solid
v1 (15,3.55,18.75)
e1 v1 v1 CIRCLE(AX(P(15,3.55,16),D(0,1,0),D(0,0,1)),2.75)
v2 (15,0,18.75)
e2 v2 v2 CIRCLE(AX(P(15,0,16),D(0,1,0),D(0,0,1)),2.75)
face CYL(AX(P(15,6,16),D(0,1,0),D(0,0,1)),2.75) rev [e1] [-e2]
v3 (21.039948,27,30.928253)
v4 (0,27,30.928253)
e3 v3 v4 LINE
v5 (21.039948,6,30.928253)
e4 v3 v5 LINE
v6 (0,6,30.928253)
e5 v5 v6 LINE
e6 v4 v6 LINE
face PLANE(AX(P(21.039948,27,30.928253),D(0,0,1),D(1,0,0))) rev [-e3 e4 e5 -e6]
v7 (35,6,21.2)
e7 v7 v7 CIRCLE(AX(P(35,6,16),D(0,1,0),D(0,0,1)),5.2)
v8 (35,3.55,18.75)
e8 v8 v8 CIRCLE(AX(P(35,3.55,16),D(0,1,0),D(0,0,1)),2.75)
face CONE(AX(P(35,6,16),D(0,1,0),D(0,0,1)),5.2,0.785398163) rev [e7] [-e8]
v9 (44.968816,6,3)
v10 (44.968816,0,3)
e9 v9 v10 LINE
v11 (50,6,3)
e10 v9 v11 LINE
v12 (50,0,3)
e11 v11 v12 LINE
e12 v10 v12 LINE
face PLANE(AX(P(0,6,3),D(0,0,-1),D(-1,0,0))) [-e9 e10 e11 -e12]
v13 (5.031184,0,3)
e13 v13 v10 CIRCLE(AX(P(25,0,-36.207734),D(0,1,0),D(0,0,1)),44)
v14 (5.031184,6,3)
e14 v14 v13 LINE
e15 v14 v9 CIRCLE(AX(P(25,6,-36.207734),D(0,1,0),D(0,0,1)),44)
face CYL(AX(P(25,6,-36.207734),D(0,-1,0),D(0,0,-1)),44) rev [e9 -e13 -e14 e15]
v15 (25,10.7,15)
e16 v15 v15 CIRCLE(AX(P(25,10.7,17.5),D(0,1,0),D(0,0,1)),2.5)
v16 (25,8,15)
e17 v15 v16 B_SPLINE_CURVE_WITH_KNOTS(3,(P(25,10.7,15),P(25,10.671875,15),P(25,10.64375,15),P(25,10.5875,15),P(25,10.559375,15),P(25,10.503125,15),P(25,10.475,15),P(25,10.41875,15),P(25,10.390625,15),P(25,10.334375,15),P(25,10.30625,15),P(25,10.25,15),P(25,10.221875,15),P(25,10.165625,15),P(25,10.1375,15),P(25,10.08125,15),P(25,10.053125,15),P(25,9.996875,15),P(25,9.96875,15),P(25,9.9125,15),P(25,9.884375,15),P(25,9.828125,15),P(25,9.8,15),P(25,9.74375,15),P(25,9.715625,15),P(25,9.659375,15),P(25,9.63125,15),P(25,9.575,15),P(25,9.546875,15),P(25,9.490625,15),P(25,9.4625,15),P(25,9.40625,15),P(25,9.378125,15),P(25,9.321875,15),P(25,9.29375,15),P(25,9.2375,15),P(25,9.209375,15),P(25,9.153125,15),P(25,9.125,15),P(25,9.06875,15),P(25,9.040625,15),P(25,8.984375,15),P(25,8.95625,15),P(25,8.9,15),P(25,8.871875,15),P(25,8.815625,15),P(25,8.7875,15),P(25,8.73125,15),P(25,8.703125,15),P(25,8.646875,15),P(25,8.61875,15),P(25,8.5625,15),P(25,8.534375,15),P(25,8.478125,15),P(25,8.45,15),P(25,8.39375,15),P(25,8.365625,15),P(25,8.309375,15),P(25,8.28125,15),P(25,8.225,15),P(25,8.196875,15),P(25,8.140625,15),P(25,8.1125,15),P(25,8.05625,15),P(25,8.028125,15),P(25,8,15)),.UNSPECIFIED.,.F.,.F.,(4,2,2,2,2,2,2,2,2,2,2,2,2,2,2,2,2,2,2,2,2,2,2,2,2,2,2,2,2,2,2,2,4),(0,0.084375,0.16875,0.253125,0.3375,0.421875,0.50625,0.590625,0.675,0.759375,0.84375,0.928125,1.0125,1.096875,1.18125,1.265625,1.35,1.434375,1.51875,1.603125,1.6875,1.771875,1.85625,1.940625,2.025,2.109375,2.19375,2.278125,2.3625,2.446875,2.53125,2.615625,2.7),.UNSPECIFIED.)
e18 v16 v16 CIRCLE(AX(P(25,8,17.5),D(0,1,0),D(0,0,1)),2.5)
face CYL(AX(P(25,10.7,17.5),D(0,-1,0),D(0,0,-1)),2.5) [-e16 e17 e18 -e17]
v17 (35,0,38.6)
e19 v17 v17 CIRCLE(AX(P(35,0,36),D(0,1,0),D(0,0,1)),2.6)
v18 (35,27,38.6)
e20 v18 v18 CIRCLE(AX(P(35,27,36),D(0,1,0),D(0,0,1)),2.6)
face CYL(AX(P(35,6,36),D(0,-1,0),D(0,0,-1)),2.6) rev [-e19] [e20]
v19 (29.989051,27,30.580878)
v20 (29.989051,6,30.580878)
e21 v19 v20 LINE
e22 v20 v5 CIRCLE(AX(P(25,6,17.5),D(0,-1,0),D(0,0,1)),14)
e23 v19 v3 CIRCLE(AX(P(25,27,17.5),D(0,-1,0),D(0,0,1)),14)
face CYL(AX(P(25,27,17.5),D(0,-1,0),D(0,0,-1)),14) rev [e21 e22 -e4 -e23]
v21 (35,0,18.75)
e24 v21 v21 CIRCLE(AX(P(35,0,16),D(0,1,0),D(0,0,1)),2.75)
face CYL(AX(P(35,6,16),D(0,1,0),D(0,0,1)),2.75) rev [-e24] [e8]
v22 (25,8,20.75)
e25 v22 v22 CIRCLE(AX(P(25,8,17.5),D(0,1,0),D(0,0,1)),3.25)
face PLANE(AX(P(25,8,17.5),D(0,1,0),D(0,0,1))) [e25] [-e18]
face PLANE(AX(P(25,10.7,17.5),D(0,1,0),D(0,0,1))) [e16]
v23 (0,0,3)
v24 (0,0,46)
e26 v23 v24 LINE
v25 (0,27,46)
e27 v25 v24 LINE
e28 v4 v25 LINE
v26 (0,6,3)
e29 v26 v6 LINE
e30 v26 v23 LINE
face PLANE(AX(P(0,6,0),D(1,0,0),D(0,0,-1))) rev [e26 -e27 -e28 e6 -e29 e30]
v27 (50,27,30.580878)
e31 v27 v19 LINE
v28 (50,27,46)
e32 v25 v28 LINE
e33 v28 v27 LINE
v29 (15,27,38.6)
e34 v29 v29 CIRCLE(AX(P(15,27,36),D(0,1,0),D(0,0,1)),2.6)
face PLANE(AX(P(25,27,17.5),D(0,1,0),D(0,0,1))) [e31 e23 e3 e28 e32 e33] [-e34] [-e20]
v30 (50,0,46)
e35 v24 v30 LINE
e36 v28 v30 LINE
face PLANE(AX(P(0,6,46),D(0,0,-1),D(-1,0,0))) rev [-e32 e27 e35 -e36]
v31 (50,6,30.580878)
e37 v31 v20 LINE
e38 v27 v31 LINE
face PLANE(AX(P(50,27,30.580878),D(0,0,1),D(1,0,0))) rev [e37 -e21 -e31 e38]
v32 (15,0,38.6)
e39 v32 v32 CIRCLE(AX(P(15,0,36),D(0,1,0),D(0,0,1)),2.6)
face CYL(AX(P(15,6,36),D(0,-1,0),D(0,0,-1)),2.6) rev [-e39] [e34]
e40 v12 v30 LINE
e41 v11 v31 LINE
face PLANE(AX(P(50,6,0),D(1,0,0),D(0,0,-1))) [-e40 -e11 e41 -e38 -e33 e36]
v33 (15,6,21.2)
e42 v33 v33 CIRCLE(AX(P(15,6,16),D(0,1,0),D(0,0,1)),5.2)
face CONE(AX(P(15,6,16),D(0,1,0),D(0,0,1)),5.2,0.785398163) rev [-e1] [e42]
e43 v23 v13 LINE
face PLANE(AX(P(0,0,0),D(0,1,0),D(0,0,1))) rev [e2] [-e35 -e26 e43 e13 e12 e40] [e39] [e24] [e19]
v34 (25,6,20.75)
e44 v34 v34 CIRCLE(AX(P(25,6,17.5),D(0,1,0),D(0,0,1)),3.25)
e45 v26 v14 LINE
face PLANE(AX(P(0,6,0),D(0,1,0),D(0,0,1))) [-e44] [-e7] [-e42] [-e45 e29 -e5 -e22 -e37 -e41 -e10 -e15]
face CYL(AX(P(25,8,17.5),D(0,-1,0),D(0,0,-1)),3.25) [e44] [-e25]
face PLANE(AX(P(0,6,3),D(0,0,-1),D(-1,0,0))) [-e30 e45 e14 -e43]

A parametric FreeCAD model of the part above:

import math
import FreeCAD as App
import Part
import Sketcher
from FreeCAD import Vector
Q = App.Units.Quantity

doc = App.newDocument("Part")
body = doc.addObject("PartDesign::Body", "Body")

sketch1 = body.newObject("Sketcher::SketchObject", "Sketch")
sketch1.AttachmentSupport = (doc.getObject("XZ_Plane"), [""])
sketch1.MapMode = "FlatFace"
sketch1.addGeometry([
    Part.LineSegment(Vector(5, 3, 0), Vector(0, 3, 0)),
    Part.LineSegment(Vector(0, 3, 0), Vector(0, 46, 0)),
    Part.LineSegment(Vector(0, 46, 0), Vector(50, 46, 0)),
    Part.LineSegment(Vector(50, 46, 0), Vector(50, 3, 0)),
    Part.LineSegment(Vector(50, 3, 0), Vector(45, 3, 0)),
    Part.ArcOfCircle(Part.Circle(Vector(25, -36.2, 0), Vector(0, 0, 1), 44), math.radians(63), math.radians(117)),
    Part.Circle(Vector(15, 36, 0), Vector(0, 0, 1), 2.6),
    Part.Circle(Vector(35, 36, 0), Vector(0, 0, 1), 2.6),
    Part.Circle(Vector(15, 16, 0), Vector(0, 0, 1), 2.6),
    Part.Circle(Vector(35, 16, 0), Vector(0, 0, 1), 2.6),
], False)
sketch1.addConstraint([
    Sketcher.Constraint("Coincident", 0, 2, 1, 1),
    Sketcher.Constraint("Coincident", 1, 2, 2, 1),
    Sketcher.Constraint("Coincident", 2, 2, 3, 1),
    Sketcher.Constraint("Coincident", 3, 2, 4, 1),
    Sketcher.Constraint("Coincident", 4, 2, 5, 1),
    Sketcher.Constraint("Coincident", 5, 2, 0, 1),
    Sketcher.Constraint("Horizontal", 0),
    Sketcher.Constraint("Vertical", 1),
    Sketcher.Constraint("Horizontal", 2),
    Sketcher.Constraint("Vertical", 3),
    Sketcher.Constraint("Horizontal", 4),
    Sketcher.Constraint("Equal", 6, 7),
    Sketcher.Constraint("Equal", 7, 8),
    Sketcher.Constraint("Equal", 8, 9),
    Sketcher.Constraint("PointOnObject", 0, 2, -2),
    Sketcher.Constraint("Horizontal", 6, 3, 7, 3),
    Sketcher.Constraint("Horizontal", 8, 3, 9, 3),
    Sketcher.Constraint("Horizontal", 0, 2, 3, 2),
    Sketcher.Constraint("Vertical", 6, 3, 8, 3),
    Sketcher.Constraint("Vertical", 7, 3, 9, 3),
    Sketcher.Constraint("Equal", 0, 4),
    Sketcher.Constraint("Radius", 5, Q("44 mm")),
    Sketcher.Constraint("Diameter", 6, Q("5.2 mm")),
    Sketcher.Constraint("DistanceX", 2, 1, 2, 2, Q("50 mm")),
    Sketcher.Constraint("DistanceY", 1, 1, 1, 2, Q("43 mm")),
    Sketcher.Constraint("DistanceX", -1, 1, 6, 3, Q("15 mm")),
    Sketcher.Constraint("DistanceY", -1, 1, 6, 3, Q("36 mm")),
    Sketcher.Constraint("DistanceX", -1, 1, 7, 3, Q("35 mm")),
    Sketcher.Constraint("DistanceY", -1, 1, 8, 3, Q("16 mm")),
    Sketcher.Constraint("DistanceY", -1, 1, 0, 2, Q("3 mm")),
    Sketcher.Constraint("DistanceX", 0, 2, 0, 1, Q("5.031184 mm")),
])
pad1 = body.newObject("PartDesign::Pad", "Pad")
pad1.Profile = sketch1
pad1.Length = 6
pad1.Reversed = True

sketch2 = body.newObject("Sketcher::SketchObject", "Sketch001")
sketch2.AttachmentSupport = (doc.getObject("XZ_Plane"), [""])
sketch2.MapMode = "FlatFace"
sketch2.AttachmentOffset = App.Placement(Vector(0, 0, -6), App.Rotation())
sketch2.addGeometry(Part.Circle(Vector(25, 17.5, 0), Vector(0, 0, 1), 3.2), False)
sketch2.addConstraint([
    Sketcher.Constraint("Diameter", 0, Q("6.5 mm")),
    Sketcher.Constraint("DistanceX", -1, 1, 0, 3, Q("25 mm")),
    Sketcher.Constraint("DistanceY", -1, 1, 0, 3, Q("17.5 mm")),
])
pad2 = body.newObject("PartDesign::Pad", "Pad001")
pad2.Profile = sketch2
pad2.Length = 2
pad2.Reversed = True

sketch3 = body.newObject("Sketcher::SketchObject", "Sketch002")
sketch3.AttachmentSupport = (doc.getObject("XZ_Plane"), [""])
sketch3.MapMode = "FlatFace"
sketch3.AttachmentOffset = App.Placement(Vector(0, 0, -8), App.Rotation())
sketch3.addGeometry(Part.Circle(Vector(25, 17.5, 0), Vector(0, 0, 1), 2.5), False)
sketch3.addConstraint([
    Sketcher.Constraint("Diameter", 0, Q("5 mm")),
    Sketcher.Constraint("DistanceX", -1, 1, 0, 3, Q("25 mm")),
    Sketcher.Constraint("DistanceY", -1, 1, 0, 3, Q("17.5 mm")),
])
pad3 = body.newObject("PartDesign::Pad", "Pad002")
pad3.Profile = sketch3
pad3.Length = 2.7
pad3.Reversed = True

sketch4 = body.newObject("Sketcher::SketchObject", "Sketch003")
sketch4.AttachmentSupport = (doc.getObject("XZ_Plane"), [""])
sketch4.MapMode = "FlatFace"
sketch4.AttachmentOffset = App.Placement(Vector(0, 0, -6), App.Rotation())
sketch4.addGeometry([
    Part.Circle(Vector(15, 16, 0), Vector(0, 0, 1), 2.8),
    Part.Circle(Vector(35, 16, 0), Vector(0, 0, 1), 2.8),
], False)
sketch4.addConstraint([
    Sketcher.Constraint("Equal", 0, 1),
    Sketcher.Constraint("Horizontal", 0, 3, 1, 3),
    Sketcher.Constraint("Diameter", 0, Q("5.5 mm")),
    Sketcher.Constraint("DistanceX", -1, 1, 0, 3, Q("15 mm")),
    Sketcher.Constraint("DistanceY", -1, 1, 0, 3, Q("16 mm")),
    Sketcher.Constraint("DistanceX", -1, 1, 1, 3, Q("35 mm")),
])
doc.recompute()
hole = body.newObject("PartDesign::Hole", "Hole")
hole.Profile = sketch4
hole.ThreadType = "None"
hole.Diameter = 5.5
hole.DepthType = "ThroughAll"
hole.HoleCutType = "Countersink"
hole.HoleCutDiameter = 10.4
hole.HoleCutCountersinkAngle = 90
hole.Reversed = True

sketch5 = body.newObject("Sketcher::SketchObject", "Sketch004")
sketch5.AttachmentSupport = (doc.getObject("XZ_Plane"), [""])
sketch5.MapMode = "FlatFace"
sketch5.AttachmentOffset = App.Placement(Vector(0, 0, -6), App.Rotation())
sketch5.addGeometry([
    Part.LineSegment(Vector(21, 30.9, 0), Vector(0, 30.9, 0)),
    Part.LineSegment(Vector(0, 30.9, 0), Vector(0, 46, 0)),
    Part.LineSegment(Vector(0, 46, 0), Vector(50, 46, 0)),
    Part.LineSegment(Vector(50, 46, 0), Vector(50, 30.6, 0)),
    Part.LineSegment(Vector(50, 30.6, 0), Vector(30, 30.6, 0)),
    Part.ArcOfCircle(Part.Circle(Vector(25, 17.5, 0), Vector(0, 0, 1), 14), math.radians(69), math.radians(106)),
    Part.Circle(Vector(15, 36, 0), Vector(0, 0, 1), 2.6),
    Part.Circle(Vector(35, 36, 0), Vector(0, 0, 1), 2.6),
], False)
sketch5.addConstraint([
    Sketcher.Constraint("Coincident", 0, 2, 1, 1),
    Sketcher.Constraint("Coincident", 1, 2, 2, 1),
    Sketcher.Constraint("Coincident", 2, 2, 3, 1),
    Sketcher.Constraint("Coincident", 3, 2, 4, 1),
    Sketcher.Constraint("Coincident", 4, 2, 5, 1),
    Sketcher.Constraint("Coincident", 5, 2, 0, 1),
    Sketcher.Constraint("Horizontal", 0),
    Sketcher.Constraint("Vertical", 1),
    Sketcher.Constraint("Horizontal", 2),
    Sketcher.Constraint("Vertical", 3),
    Sketcher.Constraint("Horizontal", 4),
    Sketcher.Constraint("Equal", 6, 7),
    Sketcher.Constraint("PointOnObject", 0, 2, -2),
    Sketcher.Constraint("Horizontal", 6, 3, 7, 3),
    Sketcher.Constraint("Radius", 5, Q("14 mm")),
    Sketcher.Constraint("Diameter", 6, Q("5.2 mm")),
    Sketcher.Constraint("DistanceX", 2, 1, 2, 2, Q("50 mm")),
    Sketcher.Constraint("DistanceX", -1, 1, 5, 3, Q("25 mm")),
    Sketcher.Constraint("DistanceX", -1, 1, 6, 3, Q("15 mm")),
    Sketcher.Constraint("DistanceY", -1, 1, 6, 3, Q("36 mm")),
    Sketcher.Constraint("DistanceX", -1, 1, 7, 3, Q("35 mm")),
    Sketcher.Constraint("DistanceY", -1, 1, 1, 2, Q("46 mm")),
    Sketcher.Constraint("DistanceY", -1, 1, 5, 3, Q("17.5 mm")),
    Sketcher.Constraint("DistanceX", 0, 2, 0, 1, Q("21.039948 mm")),
    Sketcher.Constraint("DistanceX", 4, 2, 4, 1, Q("20.010949 mm")),
])
pad4 = body.newObject("PartDesign::Pad", "Pad003")
pad4.Profile = sketch5
pad4.Length = 21
pad4.Reversed = True

doc.recompute()
